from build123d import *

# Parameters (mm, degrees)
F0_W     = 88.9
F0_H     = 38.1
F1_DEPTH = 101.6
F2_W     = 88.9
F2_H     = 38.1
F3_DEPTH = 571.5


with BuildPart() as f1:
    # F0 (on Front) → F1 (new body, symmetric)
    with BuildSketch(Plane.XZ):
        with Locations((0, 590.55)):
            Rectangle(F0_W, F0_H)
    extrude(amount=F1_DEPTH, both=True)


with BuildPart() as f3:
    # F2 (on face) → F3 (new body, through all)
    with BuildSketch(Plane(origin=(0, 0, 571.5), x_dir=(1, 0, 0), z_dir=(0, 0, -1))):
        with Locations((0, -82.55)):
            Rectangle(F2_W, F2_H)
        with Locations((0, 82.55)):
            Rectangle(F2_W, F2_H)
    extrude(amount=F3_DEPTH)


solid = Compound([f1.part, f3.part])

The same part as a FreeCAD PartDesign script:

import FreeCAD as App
import Part
import Sketcher
Q = App.Units.Quantity

doc = App.newDocument("Part")
body = doc.addObject("PartDesign::Body", "Body")

sketch1 = body.newObject("Sketcher::SketchObject", "Sketch")
sketch1.AttachmentSupport = (doc.getObject("XZ_Plane"), [""])
sketch1.MapMode = "FlatFace"
sketch1.addGeometry(Part.LineSegment(App.Vector(-44, 610, 0), App.Vector(-44, 572, 0)), False)
sketch1.addGeometry(Part.LineSegment(App.Vector(-44, 572, 0), App.Vector(44, 572, 0)), False)
sketch1.addGeometry(Part.LineSegment(App.Vector(44, 572, 0), App.Vector(44, 610, 0)), False)
sketch1.addGeometry(Part.LineSegment(App.Vector(44, 610, 0), App.Vector(-44, 610, 0)), False)
sketch1.addConstraint(Sketcher.Constraint("Coincident", 0, 2, 1, 1))
sketch1.addConstraint(Sketcher.Constraint("Coincident", 1, 2, 2, 1))
sketch1.addConstraint(Sketcher.Constraint("Coincident", 2, 2, 3, 1))
sketch1.addConstraint(Sketcher.Constraint("Coincident", 3, 2, 0, 1))
sketch1.addConstraint(Sketcher.Constraint("Vertical", 0))
sketch1.addConstraint(Sketcher.Constraint("Horizontal", 1))
sketch1.addConstraint(Sketcher.Constraint("Vertical", 2))
sketch1.addConstraint(Sketcher.Constraint("Horizontal", 3))
sketch1.addConstraint(Sketcher.Constraint("DistanceX", 1, 1, 1, 2, Q("3.5 in")))
sketch1.addConstraint(Sketcher.Constraint("DistanceY", 0, 2, 0, 1, Q("1.5 in")))
sketch1.addConstraint(Sketcher.Constraint("DistanceY", -1, 1, 2, 2, Q("24 in")))
sketch1.addConstraint(Sketcher.Constraint("DistanceX", 0, 2, -1, 1, Q("1.75 in")))
pad1 = body.newObject("PartDesign::Pad", "Pad")
pad1.Profile = sketch1
pad1.Length = Q("8 in")
pad1.Midplane = True
body2 = doc.addObject("PartDesign::Body", "Body001")
body2.AllowCompound = True

sketch2 = body2.newObject("Sketcher::SketchObject", "Sketch001")
sketch2.AttachmentSupport = (doc.getObject("XY_Plane001"), [""])
sketch2.MapMode = "FlatFace"
sketch2.AttachmentOffset = App.Placement(App.Vector(0, 0, 22.5 * 25.4), App.Rotation())
sketch2.addGeometry(Part.LineSegment(App.Vector(-44, 64, 0), App.Vector(-44, 102, 0)), False)
sketch2.addGeometry(Part.LineSegment(App.Vector(-44, 102, 0), App.Vector(44, 102, 0)), False)
sketch2.addGeometry(Part.LineSegment(App.Vector(44, 102, 0), App.Vector(44, 64, 0)), False)
sketch2.addGeometry(Part.LineSegment(App.Vector(44, 64, 0), App.Vector(-44, 64, 0)), False)
sketch2.addGeometry(Part.LineSegment(App.Vector(-44, -102, 0), App.Vector(-44, -64, 0)), False)
sketch2.addGeometry(Part.LineSegment(App.Vector(-44, -64, 0), App.Vector(44, -64, 0)), False)
sketch2.addGeometry(Part.LineSegment(App.Vector(44, -64, 0), App.Vector(44, -102, 0)), False)
sketch2.addGeometry(Part.LineSegment(App.Vector(44, -102, 0), App.Vector(-44, -102, 0)), False)
sketch2.addConstraint(Sketcher.Constraint("Coincident", 0, 2, 1, 1))
sketch2.addConstraint(Sketcher.Constraint("Coincident", 1, 2, 2, 1))
sketch2.addConstraint(Sketcher.Constraint("Coincident", 2, 2, 3, 1))
sketch2.addConstraint(Sketcher.Constraint("Coincident", 3, 2, 0, 1))
sketch2.addConstraint(Sketcher.Constraint("Coincident", 4, 2, 5, 1))
sketch2.addConstraint(Sketcher.Constraint("Coincident", 5, 2, 6, 1))
sketch2.addConstraint(Sketcher.Constraint("Coincident", 6, 2, 7, 1))
sketch2.addConstraint(Sketcher.Constraint("Coincident", 7, 2, 4, 1))
sketch2.addConstraint(Sketcher.Constraint("Vertical", 0))
sketch2.addConstraint(Sketcher.Constraint("Horizontal", 1))
sketch2.addConstraint(Sketcher.Constraint("Vertical", 2))
sketch2.addConstraint(Sketcher.Constraint("Horizontal", 3))
sketch2.addConstraint(Sketcher.Constraint("Vertical", 4))
sketch2.addConstraint(Sketcher.Constraint("Horizontal", 5))
sketch2.addConstraint(Sketcher.Constraint("Vertical", 6))
sketch2.addConstraint(Sketcher.Constraint("Horizontal", 7))
sketch2.addConstraint(Sketcher.Constraint("Symmetric", 2, 2, 4, 2, -1, 1))
sketch2.addConstraint(Sketcher.Constraint("Symmetric", 0, 2, 6, 2, -1, 1))
sketch2.addConstraint(Sketcher.Constraint("Vertical", 3, 2, 4, 2))
sketch2.addConstraint(Sketcher.Constraint("DistanceX", 1, 1, 1, 2, Q("3.5 in")))
sketch2.addConstraint(Sketcher.Constraint("DistanceY", 0, 1, 0, 2, Q("1.5 in")))
sketch2.addConstraint(Sketcher.Constraint("DistanceY", -1, 1, 0, 2, Q("4 in")))
pad2 = body2.newObject("PartDesign::Pad", "Pad001")
pad2.Profile = sketch2
pad2.Length = Q("22.5 in")
pad2.Reversed = True

doc.recompute()
